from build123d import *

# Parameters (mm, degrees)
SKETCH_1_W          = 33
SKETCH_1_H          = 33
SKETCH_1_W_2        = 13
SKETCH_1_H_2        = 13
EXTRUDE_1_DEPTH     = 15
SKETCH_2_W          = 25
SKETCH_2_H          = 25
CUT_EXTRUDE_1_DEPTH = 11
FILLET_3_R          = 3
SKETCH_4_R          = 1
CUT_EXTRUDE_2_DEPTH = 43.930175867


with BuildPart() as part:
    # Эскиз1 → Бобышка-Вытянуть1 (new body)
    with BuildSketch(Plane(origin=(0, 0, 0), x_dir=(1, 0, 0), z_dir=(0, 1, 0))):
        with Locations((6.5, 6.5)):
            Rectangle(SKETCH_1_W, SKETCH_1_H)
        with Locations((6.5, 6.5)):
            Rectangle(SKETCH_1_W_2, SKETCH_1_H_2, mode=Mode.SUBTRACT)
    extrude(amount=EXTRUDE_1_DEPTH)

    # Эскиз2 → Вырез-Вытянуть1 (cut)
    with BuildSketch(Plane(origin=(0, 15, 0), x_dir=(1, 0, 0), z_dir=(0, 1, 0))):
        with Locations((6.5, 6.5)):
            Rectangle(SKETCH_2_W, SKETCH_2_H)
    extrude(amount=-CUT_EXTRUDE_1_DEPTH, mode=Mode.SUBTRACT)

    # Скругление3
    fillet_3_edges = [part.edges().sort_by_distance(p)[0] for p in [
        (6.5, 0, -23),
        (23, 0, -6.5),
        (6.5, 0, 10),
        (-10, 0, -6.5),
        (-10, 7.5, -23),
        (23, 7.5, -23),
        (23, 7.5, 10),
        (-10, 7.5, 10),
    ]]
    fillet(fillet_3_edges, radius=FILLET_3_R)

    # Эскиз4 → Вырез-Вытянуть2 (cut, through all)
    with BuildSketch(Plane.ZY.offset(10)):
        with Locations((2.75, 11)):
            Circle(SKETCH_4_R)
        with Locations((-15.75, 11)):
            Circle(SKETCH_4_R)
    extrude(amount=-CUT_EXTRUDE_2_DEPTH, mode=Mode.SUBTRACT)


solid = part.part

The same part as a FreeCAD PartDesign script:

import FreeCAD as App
import Part
import Sketcher
from FreeCAD import Vector


def edges_at(feature, points):
    """Names of the edges that pass closest to the given points."""
    edges = feature.Shape.Edges
    near = lambda p: min(range(len(edges)), key=lambda i: edges[i].distToShape(Part.Vertex(*p))[0])
    return sorted({f"Edge{near(p) + 1}" for p in points})


def add_polygon(sketch, points):
    """Adds a closed chain of lines whose ends are joined by coincident constraints."""
    first, n = sketch.GeometryCount, len(points)
    for a, b in zip(points, points[1:] + points[:1]):
        sketch.addGeometry(Part.LineSegment(App.Vector(*a, 0), App.Vector(*b, 0)), False)
    for i in range(n):
        sketch.addConstraint(Sketcher.Constraint("Coincident", first + i, 2, first + (i + 1) % n, 1))

doc = App.newDocument("Part")
params = doc.addObject("Spreadsheet::Sheet", "Params")
for row, (alias, value) in enumerate([
    ("sketch1_width", "33 mm"),
    ("sketch1_width2", "13 mm"),
    ("pad1_length", "15 mm"),
    ("sketch2_width", "25 mm"),
    ("pocket1_length", "11 mm"),
    ("fillet_radius", "3 mm"),
    ("sketch3_diameter", "2 mm"),
], start=1):
    params.set(f"A{row}", alias)
    params.set(f"B{row}", "=" + value)
    params.setAlias(f"B{row}", alias)

body = doc.addObject("PartDesign::Body", "Body")

# Sketch on XZ plane
sketch1 = doc.addObject("Sketcher::SketchObject", "Sketch")
body.addObject(sketch1)
sketch1.AttachmentSupport = (doc.XZ_Plane, [""])
sketch1.MapMode = "FlatFace"
add_polygon(sketch1, [(-10, -23), (-10, 10), (23, 10), (23, -23)])  # lines 0-3
add_polygon(sketch1, [(13, 0), (0, 0), (0, -13), (13, -13)])  # lines 4-7
sketch1.addConstraint([
    Sketcher.Constraint("Vertical", 0),
    Sketcher.Constraint("Horizontal", 1),
    Sketcher.Constraint("Vertical", 2),
    Sketcher.Constraint("Horizontal", 3),
    Sketcher.Constraint("Horizontal", 4),
    Sketcher.Constraint("Vertical", 5),
    Sketcher.Constraint("Horizontal", 6),
    Sketcher.Constraint("Vertical", 7),
    Sketcher.Constraint("Coincident", 4, 2, -1, 1),
    Sketcher.Constraint("Equal", 3, 0),
    Sketcher.Constraint("Equal", 6, 5),
    Sketcher.Constraint("DistanceX", 1, 1, 1, 2, 33.0),
    Sketcher.Constraint("DistanceX", 4, 2, 4, 1, 13.0),
    Sketcher.Constraint("DistanceX", 0, 2, -1, 1, 10.0),
    Sketcher.Constraint("DistanceY", -1, 1, 0, 2, 10.0),
])
sketch1.setExpression("Constraints[19]", "Params.sketch1_width")
sketch1.setExpression("Constraints[20]", "Params.sketch1_width2")
pad1 = doc.addObject("PartDesign::Pad", "Pad")
body.addObject(pad1)
pad1.Profile = sketch1
pad1.setExpression("Length", "Params.pad1_length")
pad1.Reversed = True

# Sketch on XZ plane
sketch2 = doc.addObject("Sketcher::SketchObject", "Sketch001")
body.addObject(sketch2)
sketch2.AttachmentSupport = (doc.XZ_Plane, [""])
sketch2.MapMode = "FlatFace"
sketch2.AttachmentOffset = App.Placement(Vector(0, 0, -15), App.Rotation())
add_polygon(sketch2, [(-6, -19), (-6, 6), (19, 6), (19, -19)])  # lines 0-3
sketch2.addConstraint([
    Sketcher.Constraint("Vertical", 0),
    Sketcher.Constraint("Horizontal", 1),
    Sketcher.Constraint("Vertical", 2),
    Sketcher.Constraint("Horizontal", 3),
    Sketcher.Constraint("Equal", 3, 0),
    Sketcher.Constraint("DistanceX", 1, 1, 1, 2, 25.0),
    Sketcher.Constraint("DistanceX", 0, 2, -1, 1, 6.0),
    Sketcher.Constraint("DistanceY", -1, 1, 0, 2, 6.0),
])
sketch2.setExpression("Constraints[9]", "Params.sketch2_width")
pocket1 = doc.addObject("PartDesign::Pocket", "Pocket")
body.addObject(pocket1)
pocket1.Profile = sketch2
pocket1.setExpression("Length", "Params.pocket1_length")
pocket1.Reversed = True
doc.recompute()

fillet = doc.addObject("PartDesign::Fillet", "Fillet")
body.addObject(fillet)
fillet.Base = (pocket1, edges_at(pocket1, [
    (6.5, 0, -23),
    (23, 0, -6.5),
    (6.5, 0, 10),
    (-10, 0, -6.5),
    (-10, 7.5, -23),
    (23, 7.5, -23),
    (23, 7.5, 10),
    (-10, 7.5, 10),
]))
fillet.setExpression("Radius", "Params.fillet_radius")

# Sketch on YZ plane
sketch3 = doc.addObject("Sketcher::SketchObject", "Sketch002")
body.addObject(sketch3)
sketch3.AttachmentSupport = (doc.YZ_Plane, [""])
sketch3.MapMode = "FlatFace"
sketch3.AttachmentOffset = App.Placement(Vector(0, 0, -10), App.Rotation())
sketch3.addGeometry([
    Part.Circle(Vector(11, 2.8, 0), Vector(0, 0, 1), 1),
    Part.Circle(Vector(11, -15.8, 0), Vector(0, 0, 1), 1),
], False)
sketch3.addConstraint([
    Sketcher.Constraint("Equal", 0, 1),
    Sketcher.Constraint("Vertical", 0, 3, 1, 3),
    Sketcher.Constraint("Diameter", 0, 2.0),
    Sketcher.Constraint("DistanceX", -1, 1, 0, 3, 11.0),
    Sketcher.Constraint("DistanceY", 1, 3, 0, 3, 18.5),
    Sketcher.Constraint("DistanceY", -1, 1, 0, 3, 2.75),
])
sketch3.setExpression("Constraints[2]", "Params.sketch3_diameter")
pocket2 = doc.addObject("PartDesign::Pocket", "Pocket001")
body.addObject(pocket2)
pocket2.Profile = sketch3
pocket2.Type = "ThroughAll"
pocket2.Reversed = True

doc.recompute()
